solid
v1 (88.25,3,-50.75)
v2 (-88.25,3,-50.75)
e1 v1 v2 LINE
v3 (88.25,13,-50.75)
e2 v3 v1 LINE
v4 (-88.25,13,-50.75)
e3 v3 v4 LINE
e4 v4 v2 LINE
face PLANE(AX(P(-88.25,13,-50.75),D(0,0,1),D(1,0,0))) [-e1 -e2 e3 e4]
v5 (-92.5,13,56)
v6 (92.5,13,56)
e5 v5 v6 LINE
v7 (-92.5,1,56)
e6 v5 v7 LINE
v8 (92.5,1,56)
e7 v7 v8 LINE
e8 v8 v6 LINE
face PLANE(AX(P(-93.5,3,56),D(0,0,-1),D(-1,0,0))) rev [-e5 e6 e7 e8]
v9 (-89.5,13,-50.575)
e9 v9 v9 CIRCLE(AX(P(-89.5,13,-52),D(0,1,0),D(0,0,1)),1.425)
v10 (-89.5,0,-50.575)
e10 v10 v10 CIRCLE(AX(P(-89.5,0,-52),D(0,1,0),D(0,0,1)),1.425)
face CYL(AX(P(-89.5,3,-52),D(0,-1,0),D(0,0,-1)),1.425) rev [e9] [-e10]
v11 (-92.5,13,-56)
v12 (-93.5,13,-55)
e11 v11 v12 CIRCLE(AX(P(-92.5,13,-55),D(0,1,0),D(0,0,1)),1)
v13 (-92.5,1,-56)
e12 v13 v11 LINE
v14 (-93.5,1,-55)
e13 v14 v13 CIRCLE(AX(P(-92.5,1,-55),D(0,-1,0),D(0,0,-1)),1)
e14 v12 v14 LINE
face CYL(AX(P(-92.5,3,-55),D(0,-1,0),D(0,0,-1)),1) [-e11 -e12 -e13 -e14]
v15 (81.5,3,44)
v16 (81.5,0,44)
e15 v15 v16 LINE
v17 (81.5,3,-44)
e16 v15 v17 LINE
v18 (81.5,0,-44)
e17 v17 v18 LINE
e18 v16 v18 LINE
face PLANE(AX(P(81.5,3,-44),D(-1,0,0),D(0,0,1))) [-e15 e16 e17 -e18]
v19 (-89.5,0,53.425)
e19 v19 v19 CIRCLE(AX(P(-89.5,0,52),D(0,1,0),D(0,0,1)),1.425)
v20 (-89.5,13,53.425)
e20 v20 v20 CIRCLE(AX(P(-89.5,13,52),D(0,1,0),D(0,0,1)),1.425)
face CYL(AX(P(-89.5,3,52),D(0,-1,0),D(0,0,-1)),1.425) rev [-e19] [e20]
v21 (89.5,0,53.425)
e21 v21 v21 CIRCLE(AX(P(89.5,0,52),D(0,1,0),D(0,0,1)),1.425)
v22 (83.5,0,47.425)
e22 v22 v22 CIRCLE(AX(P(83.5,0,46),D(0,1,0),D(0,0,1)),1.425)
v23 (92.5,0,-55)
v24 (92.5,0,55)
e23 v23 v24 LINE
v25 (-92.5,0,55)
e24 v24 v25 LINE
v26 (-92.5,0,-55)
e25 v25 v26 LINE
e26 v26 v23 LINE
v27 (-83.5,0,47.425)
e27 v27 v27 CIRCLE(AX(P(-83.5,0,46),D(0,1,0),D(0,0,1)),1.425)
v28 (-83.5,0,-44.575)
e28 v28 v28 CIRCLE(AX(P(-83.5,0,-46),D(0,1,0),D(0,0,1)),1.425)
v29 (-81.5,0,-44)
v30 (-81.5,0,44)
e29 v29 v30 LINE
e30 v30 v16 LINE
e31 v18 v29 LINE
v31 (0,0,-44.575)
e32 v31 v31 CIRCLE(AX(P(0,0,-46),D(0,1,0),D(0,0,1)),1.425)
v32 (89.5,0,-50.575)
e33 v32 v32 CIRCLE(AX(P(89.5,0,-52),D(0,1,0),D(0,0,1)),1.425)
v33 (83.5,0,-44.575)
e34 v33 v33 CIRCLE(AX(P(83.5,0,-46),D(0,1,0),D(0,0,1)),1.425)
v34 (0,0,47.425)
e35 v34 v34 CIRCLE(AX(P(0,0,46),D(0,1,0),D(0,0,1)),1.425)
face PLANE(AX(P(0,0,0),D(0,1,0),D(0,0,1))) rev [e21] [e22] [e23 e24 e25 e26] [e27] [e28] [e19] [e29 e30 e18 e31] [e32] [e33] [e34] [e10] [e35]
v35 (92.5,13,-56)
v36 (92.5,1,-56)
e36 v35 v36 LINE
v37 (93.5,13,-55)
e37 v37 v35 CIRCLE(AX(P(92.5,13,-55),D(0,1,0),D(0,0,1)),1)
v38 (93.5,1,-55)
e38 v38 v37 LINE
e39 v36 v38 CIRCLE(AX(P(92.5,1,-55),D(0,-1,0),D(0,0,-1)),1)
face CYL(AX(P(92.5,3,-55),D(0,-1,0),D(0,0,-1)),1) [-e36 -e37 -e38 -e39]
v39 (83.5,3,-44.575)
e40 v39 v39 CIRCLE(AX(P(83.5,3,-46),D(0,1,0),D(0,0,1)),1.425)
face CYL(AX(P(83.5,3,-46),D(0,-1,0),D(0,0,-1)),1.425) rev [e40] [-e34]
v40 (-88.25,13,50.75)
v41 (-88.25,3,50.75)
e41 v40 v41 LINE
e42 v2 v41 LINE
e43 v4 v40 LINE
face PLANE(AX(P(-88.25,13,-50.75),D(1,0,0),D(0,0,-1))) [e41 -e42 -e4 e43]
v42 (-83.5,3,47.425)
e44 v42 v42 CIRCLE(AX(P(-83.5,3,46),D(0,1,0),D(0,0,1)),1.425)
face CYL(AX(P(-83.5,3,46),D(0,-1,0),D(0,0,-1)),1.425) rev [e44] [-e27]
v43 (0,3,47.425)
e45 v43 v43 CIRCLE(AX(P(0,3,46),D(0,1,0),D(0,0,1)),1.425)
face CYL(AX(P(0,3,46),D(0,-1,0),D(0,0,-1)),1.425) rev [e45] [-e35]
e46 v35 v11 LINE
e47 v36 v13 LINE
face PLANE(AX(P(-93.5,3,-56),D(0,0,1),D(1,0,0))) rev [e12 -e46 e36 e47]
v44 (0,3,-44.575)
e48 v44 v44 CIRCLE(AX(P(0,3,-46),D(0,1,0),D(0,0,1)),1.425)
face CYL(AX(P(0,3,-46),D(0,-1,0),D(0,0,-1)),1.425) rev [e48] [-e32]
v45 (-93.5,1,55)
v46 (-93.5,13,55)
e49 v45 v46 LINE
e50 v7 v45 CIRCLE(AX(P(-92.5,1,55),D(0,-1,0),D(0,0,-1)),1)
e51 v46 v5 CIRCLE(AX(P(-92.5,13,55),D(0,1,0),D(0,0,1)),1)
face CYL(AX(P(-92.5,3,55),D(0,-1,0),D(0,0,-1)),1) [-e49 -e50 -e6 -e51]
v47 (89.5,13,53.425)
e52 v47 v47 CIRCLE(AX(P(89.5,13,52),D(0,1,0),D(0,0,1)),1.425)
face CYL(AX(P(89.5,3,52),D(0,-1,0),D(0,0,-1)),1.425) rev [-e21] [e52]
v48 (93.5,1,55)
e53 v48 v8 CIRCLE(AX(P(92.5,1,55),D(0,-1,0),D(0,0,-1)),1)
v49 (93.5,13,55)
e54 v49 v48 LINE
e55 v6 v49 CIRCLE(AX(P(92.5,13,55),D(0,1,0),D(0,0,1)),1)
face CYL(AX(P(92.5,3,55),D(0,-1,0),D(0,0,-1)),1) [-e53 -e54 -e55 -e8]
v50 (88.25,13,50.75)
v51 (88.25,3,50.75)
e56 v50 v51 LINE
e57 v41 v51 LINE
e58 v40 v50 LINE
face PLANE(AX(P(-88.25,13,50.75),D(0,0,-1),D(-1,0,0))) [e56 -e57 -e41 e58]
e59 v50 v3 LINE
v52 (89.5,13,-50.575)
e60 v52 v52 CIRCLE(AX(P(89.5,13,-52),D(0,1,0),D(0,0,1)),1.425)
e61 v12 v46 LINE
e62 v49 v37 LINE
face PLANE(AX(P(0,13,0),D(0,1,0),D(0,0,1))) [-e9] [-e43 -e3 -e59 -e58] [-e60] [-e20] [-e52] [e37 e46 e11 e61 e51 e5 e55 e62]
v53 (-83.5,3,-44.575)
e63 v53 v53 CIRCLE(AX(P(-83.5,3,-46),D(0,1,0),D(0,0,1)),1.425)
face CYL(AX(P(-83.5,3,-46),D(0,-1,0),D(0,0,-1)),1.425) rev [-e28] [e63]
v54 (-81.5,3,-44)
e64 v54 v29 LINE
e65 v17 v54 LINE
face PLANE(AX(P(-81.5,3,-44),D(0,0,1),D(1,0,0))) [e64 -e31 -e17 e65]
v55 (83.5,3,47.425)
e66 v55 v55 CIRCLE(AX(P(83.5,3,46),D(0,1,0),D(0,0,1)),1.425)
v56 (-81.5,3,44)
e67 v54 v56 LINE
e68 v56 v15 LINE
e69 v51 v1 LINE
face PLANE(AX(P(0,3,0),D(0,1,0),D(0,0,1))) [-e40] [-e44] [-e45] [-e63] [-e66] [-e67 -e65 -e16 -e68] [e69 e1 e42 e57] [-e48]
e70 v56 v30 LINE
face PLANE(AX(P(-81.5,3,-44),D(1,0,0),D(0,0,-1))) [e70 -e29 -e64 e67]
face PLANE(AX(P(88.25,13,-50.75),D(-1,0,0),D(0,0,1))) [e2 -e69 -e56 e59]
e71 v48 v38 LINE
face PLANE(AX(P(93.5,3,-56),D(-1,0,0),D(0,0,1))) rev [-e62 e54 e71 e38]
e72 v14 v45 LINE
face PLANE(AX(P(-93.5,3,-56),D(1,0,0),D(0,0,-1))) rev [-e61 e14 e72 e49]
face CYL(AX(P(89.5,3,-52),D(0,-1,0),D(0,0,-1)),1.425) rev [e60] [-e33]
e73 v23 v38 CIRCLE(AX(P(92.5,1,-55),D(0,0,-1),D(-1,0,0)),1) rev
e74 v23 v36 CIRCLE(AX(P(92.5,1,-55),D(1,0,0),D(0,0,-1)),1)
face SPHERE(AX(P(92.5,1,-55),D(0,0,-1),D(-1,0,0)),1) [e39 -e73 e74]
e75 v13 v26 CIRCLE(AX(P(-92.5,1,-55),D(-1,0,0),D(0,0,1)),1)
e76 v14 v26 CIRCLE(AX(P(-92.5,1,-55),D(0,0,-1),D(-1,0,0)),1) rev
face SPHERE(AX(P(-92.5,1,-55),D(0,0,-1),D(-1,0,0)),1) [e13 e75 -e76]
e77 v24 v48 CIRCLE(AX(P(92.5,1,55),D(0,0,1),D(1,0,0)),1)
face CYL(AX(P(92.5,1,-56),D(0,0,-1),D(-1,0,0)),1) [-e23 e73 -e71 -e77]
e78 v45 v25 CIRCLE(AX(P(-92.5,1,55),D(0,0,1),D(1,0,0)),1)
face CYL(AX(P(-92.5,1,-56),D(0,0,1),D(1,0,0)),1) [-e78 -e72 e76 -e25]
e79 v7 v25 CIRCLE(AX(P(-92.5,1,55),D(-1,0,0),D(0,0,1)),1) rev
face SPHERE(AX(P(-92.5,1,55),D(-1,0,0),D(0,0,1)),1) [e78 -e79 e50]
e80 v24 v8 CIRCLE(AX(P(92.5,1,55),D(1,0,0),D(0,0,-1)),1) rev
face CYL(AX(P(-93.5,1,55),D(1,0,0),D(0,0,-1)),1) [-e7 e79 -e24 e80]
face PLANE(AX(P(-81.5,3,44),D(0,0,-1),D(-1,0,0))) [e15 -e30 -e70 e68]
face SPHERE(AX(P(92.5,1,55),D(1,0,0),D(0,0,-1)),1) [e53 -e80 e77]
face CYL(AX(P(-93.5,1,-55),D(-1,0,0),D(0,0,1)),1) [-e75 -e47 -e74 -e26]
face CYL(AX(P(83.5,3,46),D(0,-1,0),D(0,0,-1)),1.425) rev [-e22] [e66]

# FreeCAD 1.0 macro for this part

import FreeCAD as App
import Part
import Sketcher

V = App.Vector


def edges_at(feature, points):
    """Names of the edges that pass closest to the given points."""
    edges = feature.Shape.Edges
    near = lambda p: min(range(len(edges)), key=lambda i: edges[i].distToShape(Part.Vertex(*p))[0])
    return sorted({f"Edge{near(p) + 1}" for p in points})

doc = App.newDocument("Part")
body = doc.addObject("PartDesign::Body", "Body")

# Sketch on XZ plane
sketch1 = body.newObject("Sketcher::SketchObject", "Sketch")
sketch1.AttachmentSupport = (doc.getObject("XZ_Plane"), [""])
sketch1.MapMode = "FlatFace"
sketch1.addGeometry(Part.LineSegment(V(-93.5, -56, 0), V(-93.5, 56, 0)), False)
sketch1.addGeometry(Part.LineSegment(V(-93.5, 56, 0), V(93.5, 56, 0)), False)
sketch1.addGeometry(Part.LineSegment(V(93.5, 56, 0), V(93.5, -56, 0)), False)
sketch1.addGeometry(Part.LineSegment(V(93.5, -56, 0), V(-93.5, -56, 0)), False)
sketch1.addGeometry(Part.Circle(V(-89.5, 52, 0), V(0, 0, 1), 1.4), False)
sketch1.addGeometry(Part.Circle(V(-83.5, 46, 0), V(0, 0, 1), 1.4), False)
sketch1.addGeometry(Part.Circle(V(0, 46, 0), V(0, 0, 1), 1.4), False)
sketch1.addGeometry(Part.Circle(V(89.5, 52, 0), V(0, 0, 1), 1.4), False)
sketch1.addGeometry(Part.Circle(V(83.5, 46, 0), V(0, 0, 1), 1.4), False)
sketch1.addGeometry(Part.Circle(V(-83.5, -46, 0), V(0, 0, 1), 1.4), False)
sketch1.addGeometry(Part.Circle(V(-89.5, -52, 0), V(0, 0, 1), 1.4), False)
sketch1.addGeometry(Part.LineSegment(V(81.5, 44, 0), V(-81.5, 44, 0)), False)
sketch1.addGeometry(Part.LineSegment(V(-81.5, 44, 0), V(-81.5, -44, 0)), False)
sketch1.addGeometry(Part.LineSegment(V(-81.5, -44, 0), V(81.5, -44, 0)), False)
sketch1.addGeometry(Part.LineSegment(V(81.5, -44, 0), V(81.5, 44, 0)), False)
sketch1.addGeometry(Part.Circle(V(0, -46, 0), V(0, 0, 1), 1.4), False)
sketch1.addGeometry(Part.Circle(V(83.5, -46, 0), V(0, 0, 1), 1.4), False)
sketch1.addGeometry(Part.Circle(V(89.5, -52, 0), V(0, 0, 1), 1.4), False)
sketch1.addConstraint(Sketcher.Constraint("Coincident", 0, 2, 1, 1))
sketch1.addConstraint(Sketcher.Constraint("Coincident", 1, 2, 2, 1))
sketch1.addConstraint(Sketcher.Constraint("Coincident", 2, 2, 3, 1))
sketch1.addConstraint(Sketcher.Constraint("Coincident", 3, 2, 0, 1))
sketch1.addConstraint(Sketcher.Constraint("Coincident", 11, 2, 12, 1))
sketch1.addConstraint(Sketcher.Constraint("Coincident", 12, 2, 13, 1))
sketch1.addConstraint(Sketcher.Constraint("Coincident", 13, 2, 14, 1))
sketch1.addConstraint(Sketcher.Constraint("Coincident", 14, 2, 11, 1))
sketch1.addConstraint(Sketcher.Constraint("Vertical", 0))
sketch1.addConstraint(Sketcher.Constraint("Horizontal", 1))
sketch1.addConstraint(Sketcher.Constraint("Vertical", 2))
sketch1.addConstraint(Sketcher.Constraint("Horizontal", 3))
sketch1.addConstraint(Sketcher.Constraint("Horizontal", 11))
sketch1.addConstraint(Sketcher.Constraint("Vertical", 12))
sketch1.addConstraint(Sketcher.Constraint("Horizontal", 13))
sketch1.addConstraint(Sketcher.Constraint("Vertical", 14))
sketch1.addConstraint(Sketcher.Constraint("Equal", 4, 5))
sketch1.addConstraint(Sketcher.Constraint("Equal", 5, 6))
sketch1.addConstraint(Sketcher.Constraint("Equal", 6, 7))
sketch1.addConstraint(Sketcher.Constraint("Equal", 7, 8))
sketch1.addConstraint(Sketcher.Constraint("Equal", 8, 9))
sketch1.addConstraint(Sketcher.Constraint("Equal", 9, 10))
sketch1.addConstraint(Sketcher.Constraint("Equal", 10, 15))
sketch1.addConstraint(Sketcher.Constraint("Equal", 15, 16))
sketch1.addConstraint(Sketcher.Constraint("Equal", 16, 17))
sketch1.addConstraint(Sketcher.Constraint("Symmetric", 8, 3, 9, 3, -1, 1))
sketch1.addConstraint(Sketcher.Constraint("Symmetric", 7, 3, 10, 3, -1, 1))
sketch1.addConstraint(Sketcher.Constraint("Symmetric", 6, 3, 15, 3, -1, 1))
sketch1.addConstraint(Sketcher.Constraint("Symmetric", 5, 3, 16, 3, -1, 1))
sketch1.addConstraint(Sketcher.Constraint("Symmetric", 4, 3, 17, 3, -1, 1))
sketch1.addConstraint(Sketcher.Constraint("Symmetric", 0, 2, 2, 2, -1, 1))
sketch1.addConstraint(Sketcher.Constraint("Symmetric", 11, 2, 13, 2, -1, 1))
sketch1.addConstraint(Sketcher.Constraint("Symmetric", 4, 3, 7, 3, -2))
sketch1.addConstraint(Sketcher.Constraint("Symmetric", 5, 3, 8, 3, -2))
sketch1.addConstraint(Sketcher.Constraint("PointOnObject", 6, 3, -2))
sketch1.addConstraint(Sketcher.Constraint("Horizontal", 5, 3, 6, 3))
sketch1.addConstraint(Sketcher.Constraint("Diameter", 4, 2.85))
sketch1.addConstraint(Sketcher.Constraint("DistanceX", 1, 1, 1, 2, 187.0))
sketch1.addConstraint(Sketcher.Constraint("DistanceX", 11, 2, 11, 1, 163.0))
sketch1.addConstraint(Sketcher.Constraint("DistanceY", 0, 1, 0, 2, 112.0))
sketch1.addConstraint(Sketcher.Constraint("DistanceY", 12, 2, 12, 1, 88.0))
sketch1.addConstraint(Sketcher.Constraint("DistanceY", -1, 1, 4, 3, 52.0))
sketch1.addConstraint(Sketcher.Constraint("DistanceY", -1, 1, 5, 3, 46.0))
sketch1.addConstraint(Sketcher.Constraint("DistanceX", 4, 3, 5, 3, 6.0))
sketch1.addConstraint(Sketcher.Constraint("DistanceX", 5, 3, 7, 3, 173.0))
pad1 = body.newObject("PartDesign::Pad", "Pad")
pad1.Profile = sketch1
pad1.Length = 3
pad1.Reversed = True

# Sketch on XZ plane
sketch2 = body.newObject("Sketcher::SketchObject", "Sketch001")
sketch2.AttachmentSupport = (doc.getObject("XZ_Plane"), [""])
sketch2.MapMode = "FlatFace"
sketch2.AttachmentOffset = App.Placement(V(0, 0, -3), App.Rotation())
sketch2.addGeometry(Part.LineSegment(V(-93.5, -56, 0), V(-93.5, 56, 0)), False)
sketch2.addGeometry(Part.LineSegment(V(-93.5, 56, 0), V(93.5, 56, 0)), False)
sketch2.addGeometry(Part.LineSegment(V(93.5, 56, 0), V(93.5, -56, 0)), False)
sketch2.addGeometry(Part.LineSegment(V(93.5, -56, 0), V(-93.5, -56, 0)), False)
sketch2.addGeometry(Part.Circle(V(-89.5, 52, 0), V(0, 0, 1), 1.4), False)
sketch2.addGeometry(Part.Circle(V(89.5, 52, 0), V(0, 0, 1), 1.4), False)
sketch2.addGeometry(Part.Circle(V(-89.5, -52, 0), V(0, 0, 1), 1.4), False)
sketch2.addGeometry(Part.LineSegment(V(88.2, 50.8, 0), V(-88.2, 50.8, 0)), False)
sketch2.addGeometry(Part.LineSegment(V(-88.2, 50.8, 0), V(-88.2, -50.8, 0)), False)
sketch2.addGeometry(Part.LineSegment(V(-88.2, -50.8, 0), V(88.2, -50.8, 0)), False)
sketch2.addGeometry(Part.LineSegment(V(88.2, -50.8, 0), V(88.2, 50.8, 0)), False)
sketch2.addGeometry(Part.Circle(V(89.5, -52, 0), V(0, 0, 1), 1.4), False)
sketch2.addConstraint(Sketcher.Constraint("Coincident", 0, 2, 1, 1))
sketch2.addConstraint(Sketcher.Constraint("Coincident", 1, 2, 2, 1))
sketch2.addConstraint(Sketcher.Constraint("Coincident", 2, 2, 3, 1))
sketch2.addConstraint(Sketcher.Constraint("Coincident", 3, 2, 0, 1))
sketch2.addConstraint(Sketcher.Constraint("Coincident", 7, 2, 8, 1))
sketch2.addConstraint(Sketcher.Constraint("Coincident", 8, 2, 9, 1))
sketch2.addConstraint(Sketcher.Constraint("Coincident", 9, 2, 10, 1))
sketch2.addConstraint(Sketcher.Constraint("Coincident", 10, 2, 7, 1))
sketch2.addConstraint(Sketcher.Constraint("Vertical", 0))
sketch2.addConstraint(Sketcher.Constraint("Horizontal", 1))
sketch2.addConstraint(Sketcher.Constraint("Vertical", 2))
sketch2.addConstraint(Sketcher.Constraint("Horizontal", 3))
sketch2.addConstraint(Sketcher.Constraint("Horizontal", 7))
sketch2.addConstraint(Sketcher.Constraint("Vertical", 8))
sketch2.addConstraint(Sketcher.Constraint("Horizontal", 9))
sketch2.addConstraint(Sketcher.Constraint("Vertical", 10))
sketch2.addConstraint(Sketcher.Constraint("Equal", 4, 5))
sketch2.addConstraint(Sketcher.Constraint("Equal", 5, 6))
sketch2.addConstraint(Sketcher.Constraint("Equal", 6, 11))
sketch2.addConstraint(Sketcher.Constraint("Symmetric", 5, 3, 6, 3, -1, 1))
sketch2.addConstraint(Sketcher.Constraint("Symmetric", 4, 3, 11, 3, -1, 1))
sketch2.addConstraint(Sketcher.Constraint("Symmetric", 0, 2, 2, 2, -1, 1))
sketch2.addConstraint(Sketcher.Constraint("Symmetric", 7, 2, 9, 2, -1, 1))
sketch2.addConstraint(Sketcher.Constraint("Symmetric", 4, 3, 5, 3, -2))
sketch2.addConstraint(Sketcher.Constraint("Diameter", 4, 2.85))
sketch2.addConstraint(Sketcher.Constraint("DistanceX", 1, 1, 1, 2, 187.0))
sketch2.addConstraint(Sketcher.Constraint("DistanceY", 0, 1, 0, 2, 112.0))
sketch2.addConstraint(Sketcher.Constraint("DistanceX", 7, 2, 7, 1, 176.5))
sketch2.addConstraint(Sketcher.Constraint("DistanceY", 8, 2, 8, 1, 101.5))
sketch2.addConstraint(Sketcher.Constraint("DistanceY", -1, 1, 4, 3, 52.0))
sketch2.addConstraint(Sketcher.Constraint("DistanceX", 4, 3, 5, 3, 179.0))
pad2 = body.newObject("PartDesign::Pad", "Pad001")
pad2.Profile = sketch2
pad2.Length = 10
pad2.Reversed = True
doc.recompute()

fillet = body.newObject("PartDesign::Fillet", "Fillet")
fillet.Base = (pad2, edges_at(pad2, [
    (0, 0, -56),
    (93.5, 0, 0),
    (0, 0, 56),
    (-93.5, 0, 0),
    (-93.5, 6.5, -56),
    (93.5, 6.5, -56),
    (93.5, 6.5, 56),
    (-93.5, 6.5, 56),
]))
fillet.Radius = 1

doc.recompute()
